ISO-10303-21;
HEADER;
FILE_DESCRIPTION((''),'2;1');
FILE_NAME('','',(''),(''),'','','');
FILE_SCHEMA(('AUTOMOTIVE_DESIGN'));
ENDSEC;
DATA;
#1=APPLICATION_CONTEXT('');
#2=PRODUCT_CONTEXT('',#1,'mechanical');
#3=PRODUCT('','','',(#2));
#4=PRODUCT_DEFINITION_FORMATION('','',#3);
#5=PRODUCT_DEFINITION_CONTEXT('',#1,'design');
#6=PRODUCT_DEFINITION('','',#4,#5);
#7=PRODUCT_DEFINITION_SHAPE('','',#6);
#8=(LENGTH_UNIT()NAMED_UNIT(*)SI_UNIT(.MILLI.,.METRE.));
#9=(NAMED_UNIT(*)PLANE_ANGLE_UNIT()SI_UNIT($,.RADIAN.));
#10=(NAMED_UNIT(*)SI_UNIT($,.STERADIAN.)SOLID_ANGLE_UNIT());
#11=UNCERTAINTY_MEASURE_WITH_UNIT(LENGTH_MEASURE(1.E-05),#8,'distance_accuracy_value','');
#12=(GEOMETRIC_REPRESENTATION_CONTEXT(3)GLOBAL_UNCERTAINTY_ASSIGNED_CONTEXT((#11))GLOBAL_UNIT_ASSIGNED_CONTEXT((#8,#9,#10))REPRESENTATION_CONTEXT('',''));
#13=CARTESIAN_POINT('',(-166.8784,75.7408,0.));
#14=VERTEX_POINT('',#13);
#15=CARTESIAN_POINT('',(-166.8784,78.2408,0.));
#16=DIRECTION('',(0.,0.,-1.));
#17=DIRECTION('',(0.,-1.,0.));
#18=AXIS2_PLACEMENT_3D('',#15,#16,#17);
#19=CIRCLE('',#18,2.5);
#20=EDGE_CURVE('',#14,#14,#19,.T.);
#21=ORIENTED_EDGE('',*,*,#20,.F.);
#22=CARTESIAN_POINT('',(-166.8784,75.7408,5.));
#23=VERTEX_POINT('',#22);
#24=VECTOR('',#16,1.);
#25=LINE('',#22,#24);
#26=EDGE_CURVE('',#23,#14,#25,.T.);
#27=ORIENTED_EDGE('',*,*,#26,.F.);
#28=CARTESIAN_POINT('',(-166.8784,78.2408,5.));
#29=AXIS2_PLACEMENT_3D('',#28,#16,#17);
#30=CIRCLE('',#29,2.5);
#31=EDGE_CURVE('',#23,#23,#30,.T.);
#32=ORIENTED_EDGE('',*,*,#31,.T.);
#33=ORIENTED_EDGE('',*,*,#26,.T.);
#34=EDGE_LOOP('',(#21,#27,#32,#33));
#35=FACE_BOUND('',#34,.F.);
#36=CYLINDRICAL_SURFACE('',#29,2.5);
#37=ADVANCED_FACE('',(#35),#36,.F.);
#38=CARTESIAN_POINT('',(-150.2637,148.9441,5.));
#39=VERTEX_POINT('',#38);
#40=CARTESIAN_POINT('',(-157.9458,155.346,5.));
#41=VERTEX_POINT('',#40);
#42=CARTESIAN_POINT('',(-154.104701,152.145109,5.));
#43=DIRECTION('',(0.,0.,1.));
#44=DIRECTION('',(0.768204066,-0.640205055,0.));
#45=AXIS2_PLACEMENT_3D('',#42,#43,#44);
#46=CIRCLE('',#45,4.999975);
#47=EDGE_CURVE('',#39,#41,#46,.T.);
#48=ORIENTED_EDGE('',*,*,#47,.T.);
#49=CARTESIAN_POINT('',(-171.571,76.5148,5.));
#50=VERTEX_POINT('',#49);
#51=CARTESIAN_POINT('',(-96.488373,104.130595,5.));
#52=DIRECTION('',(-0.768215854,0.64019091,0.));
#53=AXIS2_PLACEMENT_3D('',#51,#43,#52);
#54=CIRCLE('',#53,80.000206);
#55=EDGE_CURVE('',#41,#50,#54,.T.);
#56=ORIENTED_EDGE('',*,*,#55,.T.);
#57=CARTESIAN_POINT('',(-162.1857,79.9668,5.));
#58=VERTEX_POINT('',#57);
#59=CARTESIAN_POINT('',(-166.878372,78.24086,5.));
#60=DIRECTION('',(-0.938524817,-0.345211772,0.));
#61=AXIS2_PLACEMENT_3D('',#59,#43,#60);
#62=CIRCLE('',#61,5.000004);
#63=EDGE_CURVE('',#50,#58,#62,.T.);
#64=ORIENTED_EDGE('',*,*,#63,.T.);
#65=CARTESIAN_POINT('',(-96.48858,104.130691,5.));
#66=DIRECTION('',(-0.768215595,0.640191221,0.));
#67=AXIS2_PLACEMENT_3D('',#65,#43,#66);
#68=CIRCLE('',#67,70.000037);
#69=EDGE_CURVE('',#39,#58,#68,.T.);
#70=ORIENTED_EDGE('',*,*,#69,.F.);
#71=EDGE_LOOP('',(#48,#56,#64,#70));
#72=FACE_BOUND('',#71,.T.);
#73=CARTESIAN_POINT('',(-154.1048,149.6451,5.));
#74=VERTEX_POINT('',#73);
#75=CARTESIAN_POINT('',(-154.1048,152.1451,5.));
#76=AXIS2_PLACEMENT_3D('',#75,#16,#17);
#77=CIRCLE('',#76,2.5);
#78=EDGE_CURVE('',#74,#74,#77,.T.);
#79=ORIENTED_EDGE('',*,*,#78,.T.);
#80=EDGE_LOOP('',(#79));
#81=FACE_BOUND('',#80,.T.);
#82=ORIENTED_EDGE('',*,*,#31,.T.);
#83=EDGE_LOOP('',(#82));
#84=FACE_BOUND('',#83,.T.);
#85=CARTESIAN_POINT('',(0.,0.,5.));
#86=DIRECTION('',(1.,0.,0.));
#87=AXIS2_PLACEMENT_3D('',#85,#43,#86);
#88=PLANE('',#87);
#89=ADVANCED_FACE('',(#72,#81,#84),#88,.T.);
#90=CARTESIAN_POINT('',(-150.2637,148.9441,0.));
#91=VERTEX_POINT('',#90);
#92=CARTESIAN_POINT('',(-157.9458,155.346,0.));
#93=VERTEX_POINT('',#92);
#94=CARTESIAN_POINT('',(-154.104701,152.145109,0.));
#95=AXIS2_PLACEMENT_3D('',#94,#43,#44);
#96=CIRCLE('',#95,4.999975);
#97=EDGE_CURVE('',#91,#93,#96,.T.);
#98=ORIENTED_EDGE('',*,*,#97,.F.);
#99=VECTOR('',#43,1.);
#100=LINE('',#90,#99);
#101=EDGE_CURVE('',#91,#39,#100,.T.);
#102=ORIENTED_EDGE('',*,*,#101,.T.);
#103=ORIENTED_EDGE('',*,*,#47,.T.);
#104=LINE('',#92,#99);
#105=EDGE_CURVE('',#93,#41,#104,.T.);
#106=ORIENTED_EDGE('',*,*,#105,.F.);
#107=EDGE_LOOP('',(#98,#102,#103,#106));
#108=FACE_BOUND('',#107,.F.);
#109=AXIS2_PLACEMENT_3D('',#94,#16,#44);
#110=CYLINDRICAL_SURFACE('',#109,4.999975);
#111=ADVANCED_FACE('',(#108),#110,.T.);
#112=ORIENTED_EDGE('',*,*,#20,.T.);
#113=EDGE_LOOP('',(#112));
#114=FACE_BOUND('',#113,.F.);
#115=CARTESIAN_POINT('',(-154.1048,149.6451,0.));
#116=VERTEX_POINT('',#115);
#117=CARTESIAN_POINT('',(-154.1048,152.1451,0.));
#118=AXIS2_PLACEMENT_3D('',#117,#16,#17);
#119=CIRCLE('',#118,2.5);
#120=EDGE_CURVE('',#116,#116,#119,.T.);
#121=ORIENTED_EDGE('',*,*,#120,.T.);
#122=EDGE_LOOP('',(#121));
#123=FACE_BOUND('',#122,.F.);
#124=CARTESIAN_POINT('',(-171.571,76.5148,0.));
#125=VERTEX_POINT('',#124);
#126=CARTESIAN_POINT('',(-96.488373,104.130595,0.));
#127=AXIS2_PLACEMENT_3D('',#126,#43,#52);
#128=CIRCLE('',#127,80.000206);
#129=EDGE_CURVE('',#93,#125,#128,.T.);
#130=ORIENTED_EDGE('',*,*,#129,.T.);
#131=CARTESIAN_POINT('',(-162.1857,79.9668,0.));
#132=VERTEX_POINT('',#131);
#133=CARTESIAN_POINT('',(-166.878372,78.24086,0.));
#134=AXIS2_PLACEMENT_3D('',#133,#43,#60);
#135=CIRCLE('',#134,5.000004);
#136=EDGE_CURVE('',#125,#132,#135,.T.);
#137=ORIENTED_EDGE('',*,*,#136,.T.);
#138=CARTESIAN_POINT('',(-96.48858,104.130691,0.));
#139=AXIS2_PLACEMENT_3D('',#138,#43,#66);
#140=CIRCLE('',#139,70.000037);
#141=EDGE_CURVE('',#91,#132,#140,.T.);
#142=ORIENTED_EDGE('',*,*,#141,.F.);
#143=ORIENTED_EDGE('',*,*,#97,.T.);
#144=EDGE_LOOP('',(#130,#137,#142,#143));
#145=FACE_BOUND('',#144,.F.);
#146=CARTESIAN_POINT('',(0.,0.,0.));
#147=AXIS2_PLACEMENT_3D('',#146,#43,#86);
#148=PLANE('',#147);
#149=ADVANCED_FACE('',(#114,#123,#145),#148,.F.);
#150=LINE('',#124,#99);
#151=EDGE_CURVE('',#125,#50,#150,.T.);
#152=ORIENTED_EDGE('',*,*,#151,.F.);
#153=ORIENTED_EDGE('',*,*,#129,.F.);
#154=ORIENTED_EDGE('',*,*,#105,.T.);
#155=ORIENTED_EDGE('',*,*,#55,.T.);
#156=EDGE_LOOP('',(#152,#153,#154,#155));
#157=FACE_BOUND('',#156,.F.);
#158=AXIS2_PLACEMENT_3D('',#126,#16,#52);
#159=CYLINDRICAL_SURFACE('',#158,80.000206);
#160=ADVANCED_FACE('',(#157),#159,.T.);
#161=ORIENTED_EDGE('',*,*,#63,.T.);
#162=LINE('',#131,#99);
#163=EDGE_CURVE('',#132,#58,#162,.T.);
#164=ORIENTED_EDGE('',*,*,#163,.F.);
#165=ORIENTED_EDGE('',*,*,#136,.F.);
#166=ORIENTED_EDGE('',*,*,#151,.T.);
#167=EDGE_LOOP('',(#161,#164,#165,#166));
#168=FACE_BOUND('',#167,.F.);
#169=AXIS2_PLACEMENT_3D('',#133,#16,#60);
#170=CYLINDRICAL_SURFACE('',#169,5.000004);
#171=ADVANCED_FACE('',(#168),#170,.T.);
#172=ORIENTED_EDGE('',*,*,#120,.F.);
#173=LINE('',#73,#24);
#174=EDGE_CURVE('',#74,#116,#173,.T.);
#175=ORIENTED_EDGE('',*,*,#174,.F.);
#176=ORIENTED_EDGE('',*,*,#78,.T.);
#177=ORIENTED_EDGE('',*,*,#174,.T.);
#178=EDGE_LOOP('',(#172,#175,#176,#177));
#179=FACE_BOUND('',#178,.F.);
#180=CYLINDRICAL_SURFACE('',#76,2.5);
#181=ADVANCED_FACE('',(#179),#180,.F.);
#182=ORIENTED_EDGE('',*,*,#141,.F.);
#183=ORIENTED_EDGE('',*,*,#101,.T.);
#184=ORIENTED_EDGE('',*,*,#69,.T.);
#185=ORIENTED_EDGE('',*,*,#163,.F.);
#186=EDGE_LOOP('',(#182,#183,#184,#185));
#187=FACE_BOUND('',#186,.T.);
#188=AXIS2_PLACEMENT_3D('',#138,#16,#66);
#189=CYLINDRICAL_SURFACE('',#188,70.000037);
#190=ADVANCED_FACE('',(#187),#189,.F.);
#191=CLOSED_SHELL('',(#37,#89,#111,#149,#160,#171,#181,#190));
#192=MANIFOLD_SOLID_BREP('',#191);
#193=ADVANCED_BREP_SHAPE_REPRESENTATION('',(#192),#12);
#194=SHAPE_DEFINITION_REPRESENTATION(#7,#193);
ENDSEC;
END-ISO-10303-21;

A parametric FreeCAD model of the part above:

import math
import FreeCAD as App
import Part
import Sketcher
from FreeCAD import Vector

doc = App.newDocument("Part")
body = doc.addObject("PartDesign::Body", "Body")

sketch1 = body.newObject("Sketcher::SketchObject", "Sketch")
sketch1.AttachmentSupport = (doc.getObject("XY_Plane"), [""])
sketch1.MapMode = "FlatFace"
sketch1.addGeometry([
    Part.ArcOfCircle(Part.Circle(Vector(-154.1048, 152.1451, 0), Vector(0, 0, 1), 5.000045), math.radians(-39.806305), math.radians(140.193842)),
    Part.ArcOfCircle(Part.Circle(Vector(-96.4886, 104.1307, 0), Vector(0, 0, 1), 79.999965), math.radians(140.193897), math.radians(200.193921)),
    Part.ArcOfCircle(Part.Circle(Vector(-166.8784, 78.2408, 0), Vector(0, 0, 1), 4.999957), math.radians(-159.805814), math.radians(20.19379)),
    Part.ArcOfCircle(Part.Circle(Vector(-96.4886, 104.1307, 0), Vector(0, 0, 1), 70.000016), math.radians(140.193915), math.radians(200.193911)),
], False)
sketch1.addConstraint([
    Sketcher.Constraint("Tangent", 0, 2, 1, 1),
    Sketcher.Constraint("Tangent", 1, 2, 2, 1),
    Sketcher.Constraint("Tangent", 2, 2, 3, 2),
    Sketcher.Constraint("Tangent", 3, 1, 0, 1),
    Sketcher.Constraint("Coincident", 3, 3, 1, 3),
    Sketcher.Constraint("Radius", 0, 5.0),
    Sketcher.Constraint("Radius", 1, 80.0),
    Sketcher.Constraint("DistanceY", 2, 3, 1, 3, 25.89),
    Sketcher.Constraint("DistanceY", -1, 1, 0, 3, 152.145),
    Sketcher.Constraint("DistanceX", 0, 2, -1, 1, 157.946),
    Sketcher.Constraint("DistanceY", -1, 1, 0, 2, 155.346),
])
pad1 = body.newObject("PartDesign::Pad", "Pad")
pad1.Profile = sketch1
pad1.Length = 5

sketch2 = body.newObject("Sketcher::SketchObject", "Sketch001")
sketch2.AttachmentSupport = (doc.getObject("XY_Plane"), [""])
sketch2.MapMode = "FlatFace"
sketch2.AttachmentOffset = App.Placement(Vector(0, 0, 5), App.Rotation())
sketch2.addGeometry([
    Part.Circle(Vector(-154.1048, 152.1451, 0), Vector(0, 0, 1), 2.5),
    Part.Circle(Vector(-166.8784, 78.2408, 0), Vector(0, 0, 1), 2.5),
], False)
sketch2.addConstraint([
    Sketcher.Constraint("Equal", 0, 1),
    Sketcher.Constraint("Diameter", 0, 5.0),
    Sketcher.Constraint("DistanceY", -1, 1, 0, 3, 152.145),
    Sketcher.Constraint("DistanceX", 0, 3, -1, 1, 154.1048),
    Sketcher.Constraint("DistanceX", 1, 3, -1, 1, 166.8784),
    Sketcher.Constraint("DistanceY", -1, 1, 1, 3, 78.2408),
])
doc.recompute()
hole = body.newObject("PartDesign::Hole", "Hole")
hole.Profile = sketch2
hole.ThreadType = "None"
hole.Diameter = 5
hole.DepthType = "ThroughAll"

doc.recompute()
